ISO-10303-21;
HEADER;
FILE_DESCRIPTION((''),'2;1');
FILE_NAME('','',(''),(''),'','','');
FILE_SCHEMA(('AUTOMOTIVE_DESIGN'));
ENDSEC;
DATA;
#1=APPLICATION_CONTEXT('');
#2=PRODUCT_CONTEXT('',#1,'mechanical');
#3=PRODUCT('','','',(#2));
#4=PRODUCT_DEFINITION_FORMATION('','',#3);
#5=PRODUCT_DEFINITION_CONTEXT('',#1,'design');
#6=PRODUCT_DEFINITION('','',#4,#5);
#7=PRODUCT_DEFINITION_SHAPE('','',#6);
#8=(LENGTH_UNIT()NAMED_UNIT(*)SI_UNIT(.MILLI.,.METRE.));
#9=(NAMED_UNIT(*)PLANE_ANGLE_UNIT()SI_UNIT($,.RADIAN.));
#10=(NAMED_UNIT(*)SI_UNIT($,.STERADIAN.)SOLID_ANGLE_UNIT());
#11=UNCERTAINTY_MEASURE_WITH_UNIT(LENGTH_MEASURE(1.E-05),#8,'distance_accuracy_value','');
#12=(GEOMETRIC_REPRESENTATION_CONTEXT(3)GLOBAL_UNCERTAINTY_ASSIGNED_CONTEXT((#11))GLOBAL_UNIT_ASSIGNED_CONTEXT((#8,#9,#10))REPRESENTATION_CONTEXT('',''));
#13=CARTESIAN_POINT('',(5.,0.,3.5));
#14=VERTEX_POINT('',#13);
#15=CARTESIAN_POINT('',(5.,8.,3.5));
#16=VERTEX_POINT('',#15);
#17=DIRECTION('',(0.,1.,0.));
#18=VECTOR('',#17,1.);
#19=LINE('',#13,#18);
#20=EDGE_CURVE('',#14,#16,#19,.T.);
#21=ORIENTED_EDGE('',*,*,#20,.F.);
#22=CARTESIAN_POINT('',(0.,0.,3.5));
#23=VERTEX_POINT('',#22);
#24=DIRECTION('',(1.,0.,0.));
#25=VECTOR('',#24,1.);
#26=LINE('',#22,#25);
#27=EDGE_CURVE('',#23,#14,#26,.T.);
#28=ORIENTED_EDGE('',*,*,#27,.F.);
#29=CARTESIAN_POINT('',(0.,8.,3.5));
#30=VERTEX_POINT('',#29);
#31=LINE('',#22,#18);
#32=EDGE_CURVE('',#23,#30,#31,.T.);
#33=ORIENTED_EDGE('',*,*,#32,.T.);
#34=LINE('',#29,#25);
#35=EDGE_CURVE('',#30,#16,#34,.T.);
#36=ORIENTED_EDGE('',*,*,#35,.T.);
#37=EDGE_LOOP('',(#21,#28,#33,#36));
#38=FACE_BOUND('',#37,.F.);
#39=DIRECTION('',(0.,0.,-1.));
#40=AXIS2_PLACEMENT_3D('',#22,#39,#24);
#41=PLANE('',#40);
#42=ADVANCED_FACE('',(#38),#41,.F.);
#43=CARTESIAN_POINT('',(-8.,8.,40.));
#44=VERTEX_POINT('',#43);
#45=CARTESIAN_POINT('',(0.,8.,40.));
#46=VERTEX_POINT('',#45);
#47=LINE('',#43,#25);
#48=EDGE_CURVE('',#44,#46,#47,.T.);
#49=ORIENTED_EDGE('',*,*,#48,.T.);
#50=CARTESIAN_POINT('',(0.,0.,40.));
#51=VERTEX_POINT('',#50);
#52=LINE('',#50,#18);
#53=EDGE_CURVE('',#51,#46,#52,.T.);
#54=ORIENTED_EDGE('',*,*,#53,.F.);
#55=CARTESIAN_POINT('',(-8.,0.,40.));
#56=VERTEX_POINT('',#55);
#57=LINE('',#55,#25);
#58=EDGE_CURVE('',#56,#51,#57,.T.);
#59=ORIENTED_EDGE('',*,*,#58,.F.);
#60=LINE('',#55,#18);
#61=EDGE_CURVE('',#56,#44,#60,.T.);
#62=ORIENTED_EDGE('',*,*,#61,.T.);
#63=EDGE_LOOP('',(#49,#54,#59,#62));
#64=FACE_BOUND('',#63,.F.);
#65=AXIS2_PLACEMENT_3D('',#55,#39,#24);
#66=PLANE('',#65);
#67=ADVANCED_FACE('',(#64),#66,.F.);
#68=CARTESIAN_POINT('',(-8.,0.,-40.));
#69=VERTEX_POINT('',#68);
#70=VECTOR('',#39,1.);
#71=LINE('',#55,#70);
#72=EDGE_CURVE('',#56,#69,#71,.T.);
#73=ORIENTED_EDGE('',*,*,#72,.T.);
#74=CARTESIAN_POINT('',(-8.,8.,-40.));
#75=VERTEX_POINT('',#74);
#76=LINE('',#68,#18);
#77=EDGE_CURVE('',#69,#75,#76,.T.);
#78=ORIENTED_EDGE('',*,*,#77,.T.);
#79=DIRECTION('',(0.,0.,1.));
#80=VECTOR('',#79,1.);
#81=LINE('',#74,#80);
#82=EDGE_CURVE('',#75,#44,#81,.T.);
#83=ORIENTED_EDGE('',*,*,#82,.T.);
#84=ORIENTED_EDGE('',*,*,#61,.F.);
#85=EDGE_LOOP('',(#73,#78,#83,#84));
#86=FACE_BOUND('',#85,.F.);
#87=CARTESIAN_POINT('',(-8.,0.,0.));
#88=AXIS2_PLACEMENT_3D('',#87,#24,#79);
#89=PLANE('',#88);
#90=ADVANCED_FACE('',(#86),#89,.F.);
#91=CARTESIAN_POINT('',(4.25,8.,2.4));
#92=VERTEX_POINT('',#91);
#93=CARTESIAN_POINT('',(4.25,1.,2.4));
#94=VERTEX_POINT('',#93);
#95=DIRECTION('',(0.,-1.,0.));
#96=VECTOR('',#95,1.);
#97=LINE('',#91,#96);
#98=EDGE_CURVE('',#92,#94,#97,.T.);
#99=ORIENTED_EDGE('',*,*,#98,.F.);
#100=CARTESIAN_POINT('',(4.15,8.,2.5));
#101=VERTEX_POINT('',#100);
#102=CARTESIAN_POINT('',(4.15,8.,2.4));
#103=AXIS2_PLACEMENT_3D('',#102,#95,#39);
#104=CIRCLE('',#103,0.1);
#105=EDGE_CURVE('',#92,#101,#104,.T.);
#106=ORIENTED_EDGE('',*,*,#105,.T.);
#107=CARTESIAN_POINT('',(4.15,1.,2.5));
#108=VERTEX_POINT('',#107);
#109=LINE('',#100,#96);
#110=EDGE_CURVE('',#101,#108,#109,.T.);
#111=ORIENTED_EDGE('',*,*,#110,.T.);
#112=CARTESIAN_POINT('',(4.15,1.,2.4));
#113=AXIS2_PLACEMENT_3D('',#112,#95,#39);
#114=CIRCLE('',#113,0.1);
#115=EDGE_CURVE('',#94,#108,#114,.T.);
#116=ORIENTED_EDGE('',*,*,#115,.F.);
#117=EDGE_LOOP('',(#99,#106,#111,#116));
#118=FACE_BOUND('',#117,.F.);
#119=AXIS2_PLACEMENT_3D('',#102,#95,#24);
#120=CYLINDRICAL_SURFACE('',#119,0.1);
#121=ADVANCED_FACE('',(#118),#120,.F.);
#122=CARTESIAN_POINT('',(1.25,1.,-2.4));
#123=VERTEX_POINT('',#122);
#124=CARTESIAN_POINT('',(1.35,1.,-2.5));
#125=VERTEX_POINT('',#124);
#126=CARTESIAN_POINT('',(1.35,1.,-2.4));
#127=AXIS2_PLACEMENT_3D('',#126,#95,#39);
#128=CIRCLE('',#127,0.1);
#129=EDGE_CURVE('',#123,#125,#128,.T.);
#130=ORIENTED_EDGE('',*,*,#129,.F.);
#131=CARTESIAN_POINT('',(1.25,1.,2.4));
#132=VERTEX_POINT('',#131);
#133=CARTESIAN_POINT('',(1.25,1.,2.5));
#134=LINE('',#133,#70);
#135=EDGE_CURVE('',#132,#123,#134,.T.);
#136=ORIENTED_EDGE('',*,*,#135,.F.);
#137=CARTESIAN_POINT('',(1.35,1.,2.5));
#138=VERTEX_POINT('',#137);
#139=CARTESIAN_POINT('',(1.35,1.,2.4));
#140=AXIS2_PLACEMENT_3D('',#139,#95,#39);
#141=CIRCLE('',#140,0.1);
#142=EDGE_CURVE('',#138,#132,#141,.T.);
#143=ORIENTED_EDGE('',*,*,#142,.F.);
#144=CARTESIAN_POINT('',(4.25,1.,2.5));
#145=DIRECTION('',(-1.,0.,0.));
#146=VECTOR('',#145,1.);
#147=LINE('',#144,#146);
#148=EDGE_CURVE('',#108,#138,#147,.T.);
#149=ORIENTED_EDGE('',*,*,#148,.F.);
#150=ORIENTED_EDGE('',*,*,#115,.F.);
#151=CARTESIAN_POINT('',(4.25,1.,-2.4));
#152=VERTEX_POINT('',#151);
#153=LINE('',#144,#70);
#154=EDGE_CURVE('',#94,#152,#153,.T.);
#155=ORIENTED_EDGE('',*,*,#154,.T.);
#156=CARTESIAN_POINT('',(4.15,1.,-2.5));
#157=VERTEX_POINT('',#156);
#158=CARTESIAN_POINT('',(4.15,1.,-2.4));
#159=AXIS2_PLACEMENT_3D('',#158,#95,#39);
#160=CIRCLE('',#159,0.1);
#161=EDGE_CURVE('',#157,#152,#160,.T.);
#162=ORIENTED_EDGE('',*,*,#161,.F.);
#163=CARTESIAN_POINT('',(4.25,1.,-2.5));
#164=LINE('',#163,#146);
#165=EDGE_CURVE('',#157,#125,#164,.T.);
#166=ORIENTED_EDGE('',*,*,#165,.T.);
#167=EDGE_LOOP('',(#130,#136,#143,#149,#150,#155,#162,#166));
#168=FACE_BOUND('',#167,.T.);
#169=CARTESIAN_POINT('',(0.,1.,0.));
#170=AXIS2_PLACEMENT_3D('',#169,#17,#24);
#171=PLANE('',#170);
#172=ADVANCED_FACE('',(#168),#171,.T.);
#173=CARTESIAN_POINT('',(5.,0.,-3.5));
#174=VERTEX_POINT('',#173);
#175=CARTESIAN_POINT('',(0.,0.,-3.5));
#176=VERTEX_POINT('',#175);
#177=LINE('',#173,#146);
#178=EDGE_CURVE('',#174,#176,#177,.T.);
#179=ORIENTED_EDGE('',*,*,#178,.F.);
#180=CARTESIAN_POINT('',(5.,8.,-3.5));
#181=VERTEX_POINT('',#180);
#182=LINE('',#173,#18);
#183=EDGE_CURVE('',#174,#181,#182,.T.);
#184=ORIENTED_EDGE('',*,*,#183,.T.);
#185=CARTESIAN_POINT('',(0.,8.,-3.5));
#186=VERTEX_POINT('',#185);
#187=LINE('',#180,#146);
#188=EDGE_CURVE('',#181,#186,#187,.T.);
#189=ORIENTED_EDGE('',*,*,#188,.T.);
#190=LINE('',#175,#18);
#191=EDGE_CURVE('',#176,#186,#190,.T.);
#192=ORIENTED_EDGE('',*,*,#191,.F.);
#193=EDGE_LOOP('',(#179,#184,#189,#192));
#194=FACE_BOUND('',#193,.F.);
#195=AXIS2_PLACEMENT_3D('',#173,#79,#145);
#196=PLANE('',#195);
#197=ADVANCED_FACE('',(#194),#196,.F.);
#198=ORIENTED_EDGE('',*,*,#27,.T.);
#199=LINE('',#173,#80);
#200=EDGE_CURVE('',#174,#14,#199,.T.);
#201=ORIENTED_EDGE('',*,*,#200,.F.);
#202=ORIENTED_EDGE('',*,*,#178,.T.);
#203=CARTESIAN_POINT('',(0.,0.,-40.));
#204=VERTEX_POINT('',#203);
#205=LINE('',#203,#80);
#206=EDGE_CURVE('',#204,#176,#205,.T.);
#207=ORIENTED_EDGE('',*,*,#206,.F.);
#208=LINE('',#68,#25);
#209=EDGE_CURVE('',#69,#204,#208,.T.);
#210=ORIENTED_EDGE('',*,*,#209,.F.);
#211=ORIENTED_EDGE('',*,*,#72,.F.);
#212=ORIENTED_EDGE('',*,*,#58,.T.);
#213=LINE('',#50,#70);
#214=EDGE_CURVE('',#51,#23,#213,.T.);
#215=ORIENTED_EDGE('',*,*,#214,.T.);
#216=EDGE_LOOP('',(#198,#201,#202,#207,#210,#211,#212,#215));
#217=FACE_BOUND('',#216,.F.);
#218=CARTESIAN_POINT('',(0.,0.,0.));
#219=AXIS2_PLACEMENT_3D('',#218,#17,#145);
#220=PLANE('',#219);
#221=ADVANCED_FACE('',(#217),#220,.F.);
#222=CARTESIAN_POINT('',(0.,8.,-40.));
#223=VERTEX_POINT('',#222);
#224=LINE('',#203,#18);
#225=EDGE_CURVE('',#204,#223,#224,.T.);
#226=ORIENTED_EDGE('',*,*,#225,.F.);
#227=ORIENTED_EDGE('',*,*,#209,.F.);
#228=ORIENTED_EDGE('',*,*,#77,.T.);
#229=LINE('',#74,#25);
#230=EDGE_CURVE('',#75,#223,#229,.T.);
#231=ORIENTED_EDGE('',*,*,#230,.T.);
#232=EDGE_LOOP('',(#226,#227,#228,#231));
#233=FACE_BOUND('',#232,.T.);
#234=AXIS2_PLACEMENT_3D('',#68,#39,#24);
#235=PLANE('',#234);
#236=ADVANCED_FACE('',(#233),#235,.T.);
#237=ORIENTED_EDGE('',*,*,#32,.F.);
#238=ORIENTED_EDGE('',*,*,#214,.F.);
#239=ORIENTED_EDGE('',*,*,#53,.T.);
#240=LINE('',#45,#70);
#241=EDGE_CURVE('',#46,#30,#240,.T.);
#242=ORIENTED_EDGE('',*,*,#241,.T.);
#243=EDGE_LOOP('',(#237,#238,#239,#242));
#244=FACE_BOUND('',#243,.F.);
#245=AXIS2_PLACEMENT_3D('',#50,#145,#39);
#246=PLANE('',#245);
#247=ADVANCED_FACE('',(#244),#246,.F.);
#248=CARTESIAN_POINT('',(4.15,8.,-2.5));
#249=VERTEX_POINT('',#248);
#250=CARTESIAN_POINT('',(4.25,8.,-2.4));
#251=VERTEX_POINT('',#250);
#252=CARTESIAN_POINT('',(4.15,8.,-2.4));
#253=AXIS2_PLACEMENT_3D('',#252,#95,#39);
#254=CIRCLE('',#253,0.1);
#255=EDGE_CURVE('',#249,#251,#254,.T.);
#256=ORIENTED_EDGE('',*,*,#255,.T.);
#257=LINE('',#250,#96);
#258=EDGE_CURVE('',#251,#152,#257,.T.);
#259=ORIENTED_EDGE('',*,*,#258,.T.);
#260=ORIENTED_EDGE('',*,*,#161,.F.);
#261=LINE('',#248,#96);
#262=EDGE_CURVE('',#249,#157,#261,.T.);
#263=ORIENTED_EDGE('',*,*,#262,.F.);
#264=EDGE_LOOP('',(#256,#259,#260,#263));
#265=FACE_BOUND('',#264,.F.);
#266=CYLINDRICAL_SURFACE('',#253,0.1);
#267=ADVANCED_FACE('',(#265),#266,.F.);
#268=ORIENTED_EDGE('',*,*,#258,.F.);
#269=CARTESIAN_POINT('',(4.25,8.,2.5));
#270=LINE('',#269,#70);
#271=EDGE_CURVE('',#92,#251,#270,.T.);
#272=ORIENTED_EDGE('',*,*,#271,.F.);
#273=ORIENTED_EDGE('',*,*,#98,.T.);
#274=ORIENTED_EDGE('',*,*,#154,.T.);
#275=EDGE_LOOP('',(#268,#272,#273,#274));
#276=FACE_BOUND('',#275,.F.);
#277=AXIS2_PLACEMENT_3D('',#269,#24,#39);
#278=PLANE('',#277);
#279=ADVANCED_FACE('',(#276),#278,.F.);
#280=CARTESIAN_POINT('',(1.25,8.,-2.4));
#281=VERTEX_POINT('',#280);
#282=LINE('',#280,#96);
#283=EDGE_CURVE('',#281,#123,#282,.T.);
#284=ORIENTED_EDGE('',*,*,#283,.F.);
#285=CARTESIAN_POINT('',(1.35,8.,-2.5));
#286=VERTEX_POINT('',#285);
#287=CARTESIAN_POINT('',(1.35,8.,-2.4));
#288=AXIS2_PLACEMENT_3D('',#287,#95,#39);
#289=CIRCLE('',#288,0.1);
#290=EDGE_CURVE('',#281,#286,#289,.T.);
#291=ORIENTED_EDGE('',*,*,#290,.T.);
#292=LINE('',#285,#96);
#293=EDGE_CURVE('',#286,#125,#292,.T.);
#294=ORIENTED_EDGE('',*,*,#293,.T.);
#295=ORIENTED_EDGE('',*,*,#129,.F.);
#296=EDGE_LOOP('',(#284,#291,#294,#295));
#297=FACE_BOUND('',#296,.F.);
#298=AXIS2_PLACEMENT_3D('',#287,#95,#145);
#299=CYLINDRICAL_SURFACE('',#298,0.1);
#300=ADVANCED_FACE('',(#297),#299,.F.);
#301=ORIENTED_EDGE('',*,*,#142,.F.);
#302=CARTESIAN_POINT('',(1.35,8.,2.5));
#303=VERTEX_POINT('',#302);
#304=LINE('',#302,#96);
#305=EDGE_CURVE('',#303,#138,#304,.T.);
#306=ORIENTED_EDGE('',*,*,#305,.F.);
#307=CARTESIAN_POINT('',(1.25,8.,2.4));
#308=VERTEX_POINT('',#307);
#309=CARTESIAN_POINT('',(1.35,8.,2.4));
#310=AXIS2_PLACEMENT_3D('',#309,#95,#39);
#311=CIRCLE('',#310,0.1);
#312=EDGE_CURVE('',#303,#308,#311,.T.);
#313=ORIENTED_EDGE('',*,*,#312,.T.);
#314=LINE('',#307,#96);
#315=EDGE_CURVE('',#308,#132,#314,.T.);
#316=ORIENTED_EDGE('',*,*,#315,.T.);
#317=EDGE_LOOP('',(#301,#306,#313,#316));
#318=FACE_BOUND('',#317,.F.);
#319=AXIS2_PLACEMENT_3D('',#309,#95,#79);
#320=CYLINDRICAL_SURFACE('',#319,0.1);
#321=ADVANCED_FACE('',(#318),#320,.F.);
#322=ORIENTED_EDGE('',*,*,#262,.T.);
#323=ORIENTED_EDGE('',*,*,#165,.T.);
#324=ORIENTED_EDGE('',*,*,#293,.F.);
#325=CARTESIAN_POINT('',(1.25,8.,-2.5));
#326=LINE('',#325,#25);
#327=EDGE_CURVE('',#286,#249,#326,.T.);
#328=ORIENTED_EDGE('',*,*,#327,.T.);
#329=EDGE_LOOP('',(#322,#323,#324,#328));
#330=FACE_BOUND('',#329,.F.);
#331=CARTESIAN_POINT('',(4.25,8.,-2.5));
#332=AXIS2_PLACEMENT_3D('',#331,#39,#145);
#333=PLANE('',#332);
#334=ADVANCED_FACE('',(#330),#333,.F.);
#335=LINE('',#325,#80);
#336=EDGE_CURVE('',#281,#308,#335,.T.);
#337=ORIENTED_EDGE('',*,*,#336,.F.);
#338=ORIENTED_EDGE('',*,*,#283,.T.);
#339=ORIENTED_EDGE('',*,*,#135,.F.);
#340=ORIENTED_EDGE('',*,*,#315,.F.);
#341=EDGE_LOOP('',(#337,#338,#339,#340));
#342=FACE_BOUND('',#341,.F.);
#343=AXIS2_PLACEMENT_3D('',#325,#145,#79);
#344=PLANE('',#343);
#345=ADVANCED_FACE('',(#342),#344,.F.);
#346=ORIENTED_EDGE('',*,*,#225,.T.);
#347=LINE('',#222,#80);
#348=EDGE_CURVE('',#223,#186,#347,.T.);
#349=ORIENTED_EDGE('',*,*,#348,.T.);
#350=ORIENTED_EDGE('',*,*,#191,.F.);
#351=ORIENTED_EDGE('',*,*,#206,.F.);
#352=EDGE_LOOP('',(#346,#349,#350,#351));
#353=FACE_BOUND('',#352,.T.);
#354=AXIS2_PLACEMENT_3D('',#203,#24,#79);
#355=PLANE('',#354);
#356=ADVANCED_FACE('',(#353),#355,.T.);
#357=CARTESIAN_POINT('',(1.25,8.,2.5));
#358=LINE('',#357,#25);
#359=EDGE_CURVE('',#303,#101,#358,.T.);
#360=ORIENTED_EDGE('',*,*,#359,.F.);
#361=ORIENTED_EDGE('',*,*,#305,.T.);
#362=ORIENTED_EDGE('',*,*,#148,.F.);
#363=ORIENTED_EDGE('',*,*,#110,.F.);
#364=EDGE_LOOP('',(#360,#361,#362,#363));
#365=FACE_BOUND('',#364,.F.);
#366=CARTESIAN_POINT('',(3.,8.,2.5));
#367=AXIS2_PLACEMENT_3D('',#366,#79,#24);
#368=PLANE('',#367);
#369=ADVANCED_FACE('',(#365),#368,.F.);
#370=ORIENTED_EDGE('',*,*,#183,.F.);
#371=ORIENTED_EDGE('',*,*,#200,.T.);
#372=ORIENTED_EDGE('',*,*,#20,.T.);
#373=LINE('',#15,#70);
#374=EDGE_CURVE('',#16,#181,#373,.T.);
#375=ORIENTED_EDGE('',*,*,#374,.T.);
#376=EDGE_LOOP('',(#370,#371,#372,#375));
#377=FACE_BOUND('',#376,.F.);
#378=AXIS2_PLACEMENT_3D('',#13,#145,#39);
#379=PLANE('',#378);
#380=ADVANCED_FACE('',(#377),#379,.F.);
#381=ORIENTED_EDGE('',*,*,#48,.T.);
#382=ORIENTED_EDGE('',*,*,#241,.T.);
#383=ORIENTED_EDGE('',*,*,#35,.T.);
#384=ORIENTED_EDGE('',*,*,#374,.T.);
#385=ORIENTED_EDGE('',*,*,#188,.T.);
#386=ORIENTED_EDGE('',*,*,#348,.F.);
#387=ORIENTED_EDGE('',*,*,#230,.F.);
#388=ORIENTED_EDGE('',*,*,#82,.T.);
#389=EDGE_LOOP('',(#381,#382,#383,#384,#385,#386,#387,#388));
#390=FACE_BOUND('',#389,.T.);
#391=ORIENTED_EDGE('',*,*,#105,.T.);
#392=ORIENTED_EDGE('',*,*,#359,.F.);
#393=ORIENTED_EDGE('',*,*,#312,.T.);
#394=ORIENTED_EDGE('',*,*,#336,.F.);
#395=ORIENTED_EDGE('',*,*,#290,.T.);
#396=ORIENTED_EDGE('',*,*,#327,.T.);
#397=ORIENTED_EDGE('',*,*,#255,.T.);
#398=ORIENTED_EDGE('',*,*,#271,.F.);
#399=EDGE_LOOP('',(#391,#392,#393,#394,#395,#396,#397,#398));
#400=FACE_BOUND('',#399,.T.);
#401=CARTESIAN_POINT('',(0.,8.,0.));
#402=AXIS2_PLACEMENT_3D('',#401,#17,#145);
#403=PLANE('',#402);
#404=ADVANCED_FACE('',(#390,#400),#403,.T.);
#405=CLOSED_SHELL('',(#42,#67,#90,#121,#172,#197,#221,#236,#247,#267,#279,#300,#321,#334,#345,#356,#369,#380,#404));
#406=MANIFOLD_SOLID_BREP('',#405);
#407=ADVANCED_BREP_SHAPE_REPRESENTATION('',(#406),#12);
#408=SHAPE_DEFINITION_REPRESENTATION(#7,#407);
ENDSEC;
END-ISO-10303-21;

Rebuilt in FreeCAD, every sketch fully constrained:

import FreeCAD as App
import Part
import Sketcher
from FreeCAD import Vector
Q = App.Units.Quantity


def edges_at(feature, points):
    """Names of the edges that pass closest to the given points."""
    edges = feature.Shape.Edges
    near = lambda p: min(range(len(edges)), key=lambda i: edges[i].distToShape(Part.Vertex(*p))[0])
    return sorted({f"Edge{near(p) + 1}" for p in points})

doc = App.newDocument("Part")
body = doc.addObject("PartDesign::Body", "Body")

sketch1 = body.newObject("Sketcher::SketchObject", "Sketch")
sketch1.AttachmentSupport = (doc.getObject("XZ_Plane"), [""])
sketch1.MapMode = "FlatFace"
sketch1.addGeometry([
    Part.LineSegment(Vector(0, 40, 0), Vector(0, 4, 0)),
    Part.LineSegment(Vector(0, 4, 0), Vector(5, 4, 0)),
    Part.LineSegment(Vector(5, 4, 0), Vector(5, -4, 0)),
    Part.LineSegment(Vector(5, -4, 0), Vector(0, -4, 0)),
    Part.LineSegment(Vector(0, -4, 0), Vector(0, -40, 0)),
    Part.LineSegment(Vector(0, -40, 0), Vector(-8, -40, 0)),
    Part.LineSegment(Vector(-8, -40, 0), Vector(-8, 40, 0)),
    Part.LineSegment(Vector(-8, 40, 0), Vector(0, 40, 0)),
], False)
sketch1.addConstraint([
    Sketcher.Constraint("Coincident", 0, 2, 1, 1),
    Sketcher.Constraint("Coincident", 1, 2, 2, 1),
    Sketcher.Constraint("Coincident", 2, 2, 3, 1),
    Sketcher.Constraint("Coincident", 3, 2, 4, 1),
    Sketcher.Constraint("Coincident", 4, 2, 5, 1),
    Sketcher.Constraint("Coincident", 5, 2, 6, 1),
    Sketcher.Constraint("Coincident", 6, 2, 7, 1),
    Sketcher.Constraint("Coincident", 7, 2, 0, 1),
    Sketcher.Constraint("Vertical", 0),
    Sketcher.Constraint("Horizontal", 1),
    Sketcher.Constraint("Vertical", 2),
    Sketcher.Constraint("Horizontal", 3),
    Sketcher.Constraint("Vertical", 4),
    Sketcher.Constraint("Horizontal", 5),
    Sketcher.Constraint("Vertical", 6),
    Sketcher.Constraint("Horizontal", 7),
    Sketcher.Constraint("Symmetric", 0, 2, 3, 2, -1, 1),
    Sketcher.Constraint("Symmetric", 4, 2, 7, 2, -1),
    Sketcher.Constraint("DistanceX", 1, 1, 1, 2, Q("5 mm")),
    Sketcher.Constraint("DistanceX", 5, 2, 5, 1, Q("8 mm")),
    Sketcher.Constraint("DistanceY", 4, 2, -1, 1, Q("40 mm")),
    Sketcher.Constraint("DistanceY", -1, 1, 0, 2, Q("3.5 mm")),
])
pad1 = body.newObject("PartDesign::Pad", "Pad")
pad1.Profile = sketch1
pad1.Length = 8
pad1.Reversed = True

sketch2 = body.newObject("Sketcher::SketchObject", "Sketch001")
sketch2.AttachmentSupport = (doc.getObject("XZ_Plane"), [""])
sketch2.MapMode = "FlatFace"
sketch2.AttachmentOffset = App.Placement(Vector(0, 0, -8), App.Rotation())
sketch2.addGeometry([
    Part.LineSegment(Vector(4.2, -2.5, 0), Vector(1.2, -2.5, 0)),
    Part.LineSegment(Vector(1.2, -2.5, 0), Vector(1.2, 2.5, 0)),
    Part.LineSegment(Vector(1.2, 2.5, 0), Vector(4.2, 2.5, 0)),
    Part.LineSegment(Vector(4.2, 2.5, 0), Vector(4.2, -2.5, 0)),
], False)
sketch2.addConstraint([
    Sketcher.Constraint("Coincident", 0, 2, 1, 1),
    Sketcher.Constraint("Coincident", 1, 2, 2, 1),
    Sketcher.Constraint("Coincident", 2, 2, 3, 1),
    Sketcher.Constraint("Coincident", 3, 2, 0, 1),
    Sketcher.Constraint("Horizontal", 0),
    Sketcher.Constraint("Vertical", 1),
    Sketcher.Constraint("Horizontal", 2),
    Sketcher.Constraint("Vertical", 3),
    Sketcher.Constraint("DistanceX", 0, 2, 0, 1, Q("3 mm")),
    Sketcher.Constraint("DistanceY", 1, 1, 1, 2, Q("5 mm")),
    Sketcher.Constraint("DistanceY", 0, 2, -1, 1, Q("2.5 mm")),
    Sketcher.Constraint("DistanceX", -1, 1, 0, 2, Q("1.25 mm")),
])
pocket1 = body.newObject("PartDesign::Pocket", "Pocket")
pocket1.Profile = sketch2
pocket1.Length = 7
pocket1.Reversed = True
doc.recompute()

fillet = body.newObject("PartDesign::Fillet", "Fillet")
fillet.Base = (pocket1, edges_at(pocket1, [(1.25, 4.5, -2.5)]))
fillet.Radius = 0.1
doc.recompute()

fillet2 = body.newObject("PartDesign::Fillet", "Fillet001")
fillet2.Base = (fillet, edges_at(fillet, [(4.25, 4.5, -2.5)]))
fillet2.Radius = 0.1
doc.recompute()

fillet3 = body.newObject("PartDesign::Fillet", "Fillet002")
fillet3.Base = (fillet2, edges_at(fillet2, [(4.25, 4.5, 2.5)]))
fillet3.Radius = 0.1
doc.recompute()

fillet4 = body.newObject("PartDesign::Fillet", "Fillet003")
fillet4.Base = (fillet3, edges_at(fillet3, [(1.25, 4.5, 2.5)]))
fillet4.Radius = 0.1

doc.recompute()
